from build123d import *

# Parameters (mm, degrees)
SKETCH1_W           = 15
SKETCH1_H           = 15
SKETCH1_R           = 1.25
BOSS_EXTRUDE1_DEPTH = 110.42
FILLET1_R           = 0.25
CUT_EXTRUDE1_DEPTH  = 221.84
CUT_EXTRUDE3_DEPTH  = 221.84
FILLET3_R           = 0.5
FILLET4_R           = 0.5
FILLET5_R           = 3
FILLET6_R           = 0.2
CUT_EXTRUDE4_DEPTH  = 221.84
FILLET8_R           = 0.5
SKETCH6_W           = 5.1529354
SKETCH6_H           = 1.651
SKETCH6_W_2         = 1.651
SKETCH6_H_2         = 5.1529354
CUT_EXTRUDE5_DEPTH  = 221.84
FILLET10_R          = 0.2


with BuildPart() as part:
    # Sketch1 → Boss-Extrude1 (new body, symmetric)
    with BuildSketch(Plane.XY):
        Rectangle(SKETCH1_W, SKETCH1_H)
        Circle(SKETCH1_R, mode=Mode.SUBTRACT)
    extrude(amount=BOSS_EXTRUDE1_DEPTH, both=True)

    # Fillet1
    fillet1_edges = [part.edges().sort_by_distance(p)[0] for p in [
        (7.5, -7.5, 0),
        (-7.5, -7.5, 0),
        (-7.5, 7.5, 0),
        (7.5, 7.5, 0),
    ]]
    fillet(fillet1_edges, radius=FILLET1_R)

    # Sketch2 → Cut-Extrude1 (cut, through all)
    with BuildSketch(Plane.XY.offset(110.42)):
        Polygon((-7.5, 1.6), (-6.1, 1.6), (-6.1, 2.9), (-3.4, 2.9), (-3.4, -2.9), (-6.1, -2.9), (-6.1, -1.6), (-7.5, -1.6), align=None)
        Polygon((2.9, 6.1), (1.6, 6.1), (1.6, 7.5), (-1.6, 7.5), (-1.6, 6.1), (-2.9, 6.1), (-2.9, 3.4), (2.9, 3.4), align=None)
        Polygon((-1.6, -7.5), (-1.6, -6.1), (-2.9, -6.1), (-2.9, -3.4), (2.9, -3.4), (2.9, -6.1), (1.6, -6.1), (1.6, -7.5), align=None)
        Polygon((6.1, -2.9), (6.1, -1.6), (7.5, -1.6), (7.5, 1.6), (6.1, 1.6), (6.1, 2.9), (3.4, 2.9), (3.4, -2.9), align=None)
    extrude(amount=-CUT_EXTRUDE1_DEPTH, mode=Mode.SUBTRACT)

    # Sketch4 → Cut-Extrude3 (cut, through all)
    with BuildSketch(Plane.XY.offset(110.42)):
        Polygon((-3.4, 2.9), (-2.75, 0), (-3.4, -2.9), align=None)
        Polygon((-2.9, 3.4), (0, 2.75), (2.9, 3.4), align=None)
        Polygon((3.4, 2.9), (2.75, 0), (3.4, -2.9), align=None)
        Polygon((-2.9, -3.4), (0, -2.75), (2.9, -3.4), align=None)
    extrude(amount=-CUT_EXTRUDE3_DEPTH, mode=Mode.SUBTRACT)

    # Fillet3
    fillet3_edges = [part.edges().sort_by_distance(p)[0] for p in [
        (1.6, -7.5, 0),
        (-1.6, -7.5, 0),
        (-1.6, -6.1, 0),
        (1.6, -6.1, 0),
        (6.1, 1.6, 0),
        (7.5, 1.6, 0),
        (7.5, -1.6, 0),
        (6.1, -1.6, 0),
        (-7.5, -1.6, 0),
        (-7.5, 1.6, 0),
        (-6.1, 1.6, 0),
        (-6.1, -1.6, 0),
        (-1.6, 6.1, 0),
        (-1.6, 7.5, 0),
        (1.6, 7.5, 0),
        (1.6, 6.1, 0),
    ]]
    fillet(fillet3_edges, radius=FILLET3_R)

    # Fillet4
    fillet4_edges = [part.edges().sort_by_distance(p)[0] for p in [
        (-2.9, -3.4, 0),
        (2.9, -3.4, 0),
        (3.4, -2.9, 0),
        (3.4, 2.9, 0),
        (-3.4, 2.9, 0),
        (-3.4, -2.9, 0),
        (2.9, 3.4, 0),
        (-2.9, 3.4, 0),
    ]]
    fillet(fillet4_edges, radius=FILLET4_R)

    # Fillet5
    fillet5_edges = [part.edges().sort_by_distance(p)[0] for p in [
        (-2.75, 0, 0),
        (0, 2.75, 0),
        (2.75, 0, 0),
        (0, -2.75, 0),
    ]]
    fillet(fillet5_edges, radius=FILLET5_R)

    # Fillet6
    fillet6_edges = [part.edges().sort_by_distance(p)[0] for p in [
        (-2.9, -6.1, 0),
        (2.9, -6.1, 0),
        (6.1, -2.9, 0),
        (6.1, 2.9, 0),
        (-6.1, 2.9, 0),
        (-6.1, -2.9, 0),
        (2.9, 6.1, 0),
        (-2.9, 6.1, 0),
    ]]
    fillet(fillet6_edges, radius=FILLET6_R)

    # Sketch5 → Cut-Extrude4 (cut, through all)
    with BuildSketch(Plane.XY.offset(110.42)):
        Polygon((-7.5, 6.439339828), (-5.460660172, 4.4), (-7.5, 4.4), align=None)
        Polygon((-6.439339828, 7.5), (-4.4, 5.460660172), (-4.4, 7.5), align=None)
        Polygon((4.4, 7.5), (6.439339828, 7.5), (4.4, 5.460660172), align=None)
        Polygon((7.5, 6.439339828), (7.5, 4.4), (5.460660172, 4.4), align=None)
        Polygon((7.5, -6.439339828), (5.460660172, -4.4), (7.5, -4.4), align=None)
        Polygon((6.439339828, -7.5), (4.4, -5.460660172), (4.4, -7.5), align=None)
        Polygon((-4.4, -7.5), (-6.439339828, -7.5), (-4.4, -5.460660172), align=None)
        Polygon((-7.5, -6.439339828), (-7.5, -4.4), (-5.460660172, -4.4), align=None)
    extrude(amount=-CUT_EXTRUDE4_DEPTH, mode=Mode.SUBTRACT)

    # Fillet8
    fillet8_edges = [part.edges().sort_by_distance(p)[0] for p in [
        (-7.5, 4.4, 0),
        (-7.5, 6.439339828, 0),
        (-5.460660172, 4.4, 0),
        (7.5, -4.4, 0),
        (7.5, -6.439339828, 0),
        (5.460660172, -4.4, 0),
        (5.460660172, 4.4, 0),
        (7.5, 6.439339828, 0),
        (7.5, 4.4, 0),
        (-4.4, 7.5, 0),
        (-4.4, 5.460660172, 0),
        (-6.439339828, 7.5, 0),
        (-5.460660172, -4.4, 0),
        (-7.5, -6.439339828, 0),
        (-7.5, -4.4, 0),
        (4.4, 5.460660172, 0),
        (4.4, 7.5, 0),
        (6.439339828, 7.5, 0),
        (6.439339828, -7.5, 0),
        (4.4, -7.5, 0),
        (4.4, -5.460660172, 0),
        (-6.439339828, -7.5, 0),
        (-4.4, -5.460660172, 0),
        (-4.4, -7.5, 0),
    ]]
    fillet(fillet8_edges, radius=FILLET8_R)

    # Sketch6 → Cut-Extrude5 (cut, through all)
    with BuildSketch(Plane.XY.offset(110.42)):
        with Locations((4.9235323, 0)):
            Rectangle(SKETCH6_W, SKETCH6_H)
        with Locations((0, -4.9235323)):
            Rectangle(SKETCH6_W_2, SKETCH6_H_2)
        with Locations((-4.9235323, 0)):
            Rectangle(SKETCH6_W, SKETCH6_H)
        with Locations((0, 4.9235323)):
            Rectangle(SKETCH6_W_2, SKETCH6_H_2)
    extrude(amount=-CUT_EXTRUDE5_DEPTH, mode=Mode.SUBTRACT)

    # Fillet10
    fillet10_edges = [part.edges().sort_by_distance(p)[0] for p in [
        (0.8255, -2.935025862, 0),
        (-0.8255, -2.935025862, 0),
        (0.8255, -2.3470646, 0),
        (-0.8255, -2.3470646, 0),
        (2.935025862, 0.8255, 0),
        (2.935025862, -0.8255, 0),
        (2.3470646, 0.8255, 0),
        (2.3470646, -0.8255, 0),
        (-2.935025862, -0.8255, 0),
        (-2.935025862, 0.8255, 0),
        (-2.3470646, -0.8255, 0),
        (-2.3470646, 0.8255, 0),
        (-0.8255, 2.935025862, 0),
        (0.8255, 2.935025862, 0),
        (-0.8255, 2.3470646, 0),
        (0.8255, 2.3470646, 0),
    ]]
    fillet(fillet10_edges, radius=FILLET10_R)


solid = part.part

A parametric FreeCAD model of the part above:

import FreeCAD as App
import Part
import Sketcher


def edges_at(feature, points):
    """Names of the edges that pass closest to the given points."""
    edges = feature.Shape.Edges
    near = lambda p: min(range(len(edges)), key=lambda i: edges[i].distToShape(Part.Vertex(*p))[0])
    return sorted({f"Edge{near(p) + 1}" for p in points})


def add_polygon(sketch, points):
    """Adds a closed chain of lines whose ends are joined by coincident constraints."""
    first, n = sketch.GeometryCount, len(points)
    for a, b in zip(points, points[1:] + points[:1]):
        sketch.addGeometry(Part.LineSegment(App.Vector(*a, 0), App.Vector(*b, 0)), False)
    for i in range(n):
        sketch.addConstraint(Sketcher.Constraint("Coincident", first + i, 2, first + (i + 1) % n, 1))

doc = App.newDocument("Part")
params = doc.addObject("Spreadsheet::Sheet", "Params")
for row, (alias, value) in enumerate([
    ("sketch1_diameter", "2.5 mm"),
    ("sketch1_width", "15 mm"),
    ("pad1_length", "220.84 mm"),
    ("fillet_radius", "0.25 mm"),
    ("sketch2_width", "1.4 mm"),
    ("sketch2_width2", "2.7 mm"),
    ("sketch2_width3", "1.3 mm"),
    ("sketch2_width4", "3.2 mm"),
    ("sketch3_width", "5.8 mm"),
    ("fillet2_radius", "0.5 mm"),
    ("fillet3_radius", "0.5 mm"),
    ("fillet4_radius", "3 mm"),
    ("fillet5_radius", "0.2 mm"),
    ("fillet6_radius", "0.5 mm"),
    ("fillet7_radius", "0.2 mm"),
], start=1):
    params.set(f"A{row}", alias)
    params.set(f"B{row}", "=" + value)
    params.setAlias(f"B{row}", alias)

body = doc.addObject("PartDesign::Body", "Body")

sketch1 = body.newObject("Sketcher::SketchObject", "Sketch")
sketch1.AttachmentSupport = (doc.getObject("XY_Plane"), [""])
sketch1.MapMode = "FlatFace"
add_polygon(sketch1, [(-7.5, 7.5), (-7.5, -7.5), (7.5, -7.5), (7.5, 7.5)])
sketch1.addGeometry(Part.Circle(App.Vector(0, 0, 0), App.Vector(0, 0, 1), 1.2), False)
sketch1.addConstraint(Sketcher.Constraint("Vertical", 0))
sketch1.addConstraint(Sketcher.Constraint("Horizontal", 1))
sketch1.addConstraint(Sketcher.Constraint("Vertical", 2))
sketch1.addConstraint(Sketcher.Constraint("Horizontal", 3))
sketch1.addConstraint(Sketcher.Constraint("Coincident", 4, 3, -1, 1))
sketch1.addConstraint(Sketcher.Constraint("Symmetric", 0, 2, 2, 2, -1, 1))
sketch1.addConstraint(Sketcher.Constraint("Equal", 3, 0))
sketch1.addConstraint(Sketcher.Constraint("Diameter", 4, 2.5))
sketch1.addConstraint(Sketcher.Constraint("DistanceX", 1, 1, 1, 2, 15.0))
sketch1.setExpression("Constraints[11]", "Params.sketch1_diameter")
sketch1.setExpression("Constraints[12]", "Params.sketch1_width")
pad1 = body.newObject("PartDesign::Pad", "Pad")
pad1.Profile = sketch1
pad1.setExpression("Length", "Params.pad1_length")
pad1.Midplane = True
doc.recompute()

fillet = body.newObject("PartDesign::Fillet", "Fillet")
fillet.Base = (pad1, edges_at(pad1, [
    (7.5, -7.5, 0),
    (-7.5, -7.5, 0),
    (-7.5, 7.5, 0),
    (7.5, 7.5, 0),
]))
fillet.setExpression("Radius", "Params.fillet_radius")

sketch2 = body.newObject("Sketcher::SketchObject", "Sketch001")
sketch2.AttachmentSupport = (doc.getObject("XY_Plane"), [""])
sketch2.MapMode = "FlatFace"
sketch2.AttachmentOffset = App.Placement(App.Vector(0, 0, 110.42), App.Rotation())
add_polygon(sketch2, [(-6.1, 1.6), (-7.5, 1.6), (-7.5, -1.6), (-6.1, -1.6), (-6.1, -2.9), (-3.4, -2.9), (-3.4, 2.9), (-6.1, 2.9)])
add_polygon(sketch2, [(2.9, 6.1), (1.6, 6.1), (1.6, 7.5), (-1.6, 7.5), (-1.6, 6.1), (-2.9, 6.1), (-2.9, 3.4), (2.9, 3.4)])
add_polygon(sketch2, [(-1.6, -6.1), (-1.6, -7.5), (1.6, -7.5), (1.6, -6.1), (2.9, -6.1), (2.9, -3.4), (-2.9, -3.4), (-2.9, -6.1)])
add_polygon(sketch2, [(6.1, -2.9), (6.1, -1.6), (7.5, -1.6), (7.5, 1.6), (6.1, 1.6), (6.1, 2.9), (3.4, 2.9), (3.4, -2.9)])
sketch2.addConstraint(Sketcher.Constraint("Horizontal", 0))
sketch2.addConstraint(Sketcher.Constraint("Vertical", 1))
sketch2.addConstraint(Sketcher.Constraint("Horizontal", 2))
sketch2.addConstraint(Sketcher.Constraint("Vertical", 3))
sketch2.addConstraint(Sketcher.Constraint("Horizontal", 4))
sketch2.addConstraint(Sketcher.Constraint("Vertical", 5))
sketch2.addConstraint(Sketcher.Constraint("Horizontal", 6))
sketch2.addConstraint(Sketcher.Constraint("Vertical", 7))
sketch2.addConstraint(Sketcher.Constraint("Horizontal", 8))
sketch2.addConstraint(Sketcher.Constraint("Vertical", 9))
sketch2.addConstraint(Sketcher.Constraint("Horizontal", 10))
sketch2.addConstraint(Sketcher.Constraint("Vertical", 11))
sketch2.addConstraint(Sketcher.Constraint("Horizontal", 12))
sketch2.addConstraint(Sketcher.Constraint("Vertical", 13))
sketch2.addConstraint(Sketcher.Constraint("Horizontal", 14))
sketch2.addConstraint(Sketcher.Constraint("Vertical", 15))
sketch2.addConstraint(Sketcher.Constraint("Vertical", 16))
sketch2.addConstraint(Sketcher.Constraint("Horizontal", 17))
sketch2.addConstraint(Sketcher.Constraint("Vertical", 18))
sketch2.addConstraint(Sketcher.Constraint("Horizontal", 19))
sketch2.addConstraint(Sketcher.Constraint("Vertical", 20))
sketch2.addConstraint(Sketcher.Constraint("Horizontal", 21))
sketch2.addConstraint(Sketcher.Constraint("Vertical", 22))
sketch2.addConstraint(Sketcher.Constraint("Horizontal", 23))
sketch2.addConstraint(Sketcher.Constraint("Vertical", 24))
sketch2.addConstraint(Sketcher.Constraint("Horizontal", 25))
sketch2.addConstraint(Sketcher.Constraint("Vertical", 26))
sketch2.addConstraint(Sketcher.Constraint("Horizontal", 27))
sketch2.addConstraint(Sketcher.Constraint("Vertical", 28))
sketch2.addConstraint(Sketcher.Constraint("Horizontal", 29))
sketch2.addConstraint(Sketcher.Constraint("Vertical", 30))
sketch2.addConstraint(Sketcher.Constraint("Horizontal", 31))
sketch2.addConstraint(Sketcher.Constraint("Symmetric", 9, 2, 16, 2, -1, 1))
sketch2.addConstraint(Sketcher.Constraint("Symmetric", 11, 2, 18, 2, -1, 1))
sketch2.addConstraint(Sketcher.Constraint("Symmetric", 13, 2, 20, 2, -1, 1))
sketch2.addConstraint(Sketcher.Constraint("Symmetric", 15, 2, 22, 2, -1, 1))
sketch2.addConstraint(Sketcher.Constraint("Symmetric", 7, 2, 24, 2, -1, 1))
sketch2.addConstraint(Sketcher.Constraint("Symmetric", 1, 2, 26, 2, -1, 1))
sketch2.addConstraint(Sketcher.Constraint("Symmetric", 3, 2, 28, 2, -1, 1))
sketch2.addConstraint(Sketcher.Constraint("Symmetric", 5, 2, 30, 2, -1, 1))
sketch2.addConstraint(Sketcher.Constraint("Symmetric", 8, 2, 11, 2, -2))
sketch2.addConstraint(Sketcher.Constraint("Symmetric", 2, 2, 24, 2, -2))
sketch2.addConstraint(Sketcher.Constraint("Horizontal", 6, 2, 28, 2))
sketch2.addConstraint(Sketcher.Constraint("Vertical", 15, 2, 19, 2))
sketch2.addConstraint(Sketcher.Constraint("Equal", 17, 1))
sketch2.addConstraint(Sketcher.Constraint("Equal", 23, 3))
sketch2.addConstraint(Sketcher.Constraint("Equal", 27, 9))
sketch2.addConstraint(Sketcher.Constraint("Equal", 31, 13))
sketch2.addConstraint(Sketcher.Constraint("DistanceX", 0, 2, 0, 1, 1.4))
sketch2.addConstraint(Sketcher.Constraint("DistanceX", 4, 1, 4, 2, 2.7))
sketch2.addConstraint(Sketcher.Constraint("DistanceX", 8, 2, 8, 1, 1.3))
sketch2.addConstraint(Sketcher.Constraint("DistanceX", 10, 2, 10, 1, 3.2))
sketch2.addConstraint(Sketcher.Constraint("DistanceX", 5, 2, 8, 2, 5.0))
sketch2.addConstraint(Sketcher.Constraint("DistanceY", 4, 2, 8, 2, 9.0))
sketch2.setExpression("Constraints[80]", "Params.sketch2_width")
sketch2.setExpression("Constraints[81]", "Params.sketch2_width2")
sketch2.setExpression("Constraints[82]", "Params.sketch2_width3")
sketch2.setExpression("Constraints[83]", "Params.sketch2_width4")
pocket1 = body.newObject("PartDesign::Pocket", "Pocket")
pocket1.Profile = sketch2
pocket1.Type = "ThroughAll"

sketch3 = body.newObject("Sketcher::SketchObject", "Sketch002")
sketch3.AttachmentSupport = (doc.getObject("XY_Plane"), [""])
sketch3.MapMode = "FlatFace"
sketch3.AttachmentOffset = App.Placement(App.Vector(0, 0, 110.42), App.Rotation())
add_polygon(sketch3, [(-2.8, 0), (-3.4, 2.9), (-3.4, -2.9)])
add_polygon(sketch3, [(-2.9, 3.4), (0, 2.8), (2.9, 3.4)])
add_polygon(sketch3, [(3.4, 2.9), (2.8, 0), (3.4, -2.9)])
add_polygon(sketch3, [(0, -2.8), (-2.9, -3.4), (2.9, -3.4)])
sketch3.addConstraint(Sketcher.Constraint("Vertical", 1))
sketch3.addConstraint(Sketcher.Constraint("Horizontal", 5))
sketch3.addConstraint(Sketcher.Constraint("Vertical", 8))
sketch3.addConstraint(Sketcher.Constraint("Horizontal", 10))
sketch3.addConstraint(Sketcher.Constraint("Symmetric", 2, 2, 6, 2, -1, 1))
sketch3.addConstraint(Sketcher.Constraint("Symmetric", 0, 2, 7, 2, -1, 1))
sketch3.addConstraint(Sketcher.Constraint("Symmetric", 4, 2, 9, 2, -1, 1))
sketch3.addConstraint(Sketcher.Constraint("Symmetric", 3, 2, 11, 2, -1, 1))
sketch3.addConstraint(Sketcher.Constraint("PointOnObject", 2, 2, -1))
sketch3.addConstraint(Sketcher.Constraint("PointOnObject", 3, 2, -2))
sketch3.addConstraint(Sketcher.Constraint("Perpendicular", 2, 3))
sketch3.addConstraint(Sketcher.Constraint("Perpendicular", 0, 4))
sketch3.addConstraint(Sketcher.Constraint("Perpendicular", 3, 6))
sketch3.addConstraint(Sketcher.Constraint("Perpendicular", 6, 11))
sketch3.addConstraint(Sketcher.Constraint("Horizontal", 1, 2, 7, 2))
sketch3.addConstraint(Sketcher.Constraint("Equal", 10, 1))
sketch3.addConstraint(Sketcher.Constraint("DistanceX", 5, 2, 5, 1, 5.8))
sketch3.addConstraint(Sketcher.Constraint("DistanceX", 0, 2, -1, 1, 3.4))
sketch3.addConstraint(Sketcher.Constraint("DistanceY", -1, 1, 4, 2, 3.4))
sketch3.addConstraint(Sketcher.Constraint("DistanceX", 2, 2, 6, 2, 5.5))
sketch3.setExpression("Constraints[28]", "Params.sketch3_width")
pocket2 = body.newObject("PartDesign::Pocket", "Pocket001")
pocket2.Profile = sketch3
pocket2.Type = "ThroughAll"
doc.recompute()

fillet2 = body.newObject("PartDesign::Fillet", "Fillet001")
fillet2.Base = (pocket2, edges_at(pocket2, [
    (1.6, -7.5, 0),
    (-1.6, -7.5, 0),
    (-1.6, -6.1, 0),
    (1.6, -6.1, 0),
    (6.1, 1.6, 0),
    (7.5, 1.6, 0),
    (7.5, -1.6, 0),
    (6.1, -1.6, 0),
    (-7.5, -1.6, 0),
    (-7.5, 1.6, 0),
    (-6.1, 1.6, 0),
    (-6.1, -1.6, 0),
    (-1.6, 6.1, 0),
    (-1.6, 7.5, 0),
    (1.6, 7.5, 0),
    (1.6, 6.1, 0),
]))
fillet2.setExpression("Radius", "Params.fillet2_radius")
doc.recompute()

fillet3 = body.newObject("PartDesign::Fillet", "Fillet002")
fillet3.Base = (fillet2, edges_at(fillet2, [
    (-2.9, -3.4, 0),
    (2.9, -3.4, 0),
    (3.4, -2.9, 0),
    (3.4, 2.9, 0),
    (-3.4, 2.9, 0),
    (-3.4, -2.9, 0),
    (2.9, 3.4, 0),
    (-2.9, 3.4, 0),
]))
fillet3.setExpression("Radius", "Params.fillet3_radius")
doc.recompute()

fillet4 = body.newObject("PartDesign::Fillet", "Fillet003")
fillet4.Base = (fillet3, edges_at(fillet3, [
    (-2.75, 0, 0),
    (0, 2.75, 0),
    (2.75, 0, 0),
    (0, -2.75, 0),
]))
fillet4.setExpression("Radius", "Params.fillet4_radius")
doc.recompute()

fillet5 = body.newObject("PartDesign::Fillet", "Fillet004")
fillet5.Base = (fillet4, edges_at(fillet4, [
    (-2.9, -6.1, 0),
    (2.9, -6.1, 0),
    (6.1, -2.9, 0),
    (6.1, 2.9, 0),
    (-6.1, 2.9, 0),
    (-6.1, -2.9, 0),
    (2.9, 6.1, 0),
    (-2.9, 6.1, 0),
]))
fillet5.setExpression("Radius", "Params.fillet5_radius")

sketch4 = body.newObject("Sketcher::SketchObject", "Sketch003")
sketch4.AttachmentSupport = (doc.getObject("XY_Plane"), [""])
sketch4.MapMode = "FlatFace"
sketch4.AttachmentOffset = App.Placement(App.Vector(0, 0, 110.42), App.Rotation())
add_polygon(sketch4, [(-5.5, 4.4), (-7.5, 6.4), (-7.5, 4.4)])
add_polygon(sketch4, [(-6.4, 7.5), (-4.4, 5.5), (-4.4, 7.5)])
add_polygon(sketch4, [(6.4, 7.5), (4.4, 7.5), (4.4, 5.5)])
add_polygon(sketch4, [(7.5, 4.4), (7.5, 6.4), (5.5, 4.4)])
add_polygon(sketch4, [(5.5, -4.4), (7.5, -6.4), (7.5, -4.4)])
add_polygon(sketch4, [(6.4, -7.5), (4.4, -5.5), (4.4, -7.5)])
add_polygon(sketch4, [(-6.4, -7.5), (-4.4, -7.5), (-4.4, -5.5)])
add_polygon(sketch4, [(-7.5, -4.4), (-7.5, -6.4), (-5.5, -4.4)])
sketch4.addConstraint(Sketcher.Constraint("Vertical", 1))
sketch4.addConstraint(Sketcher.Constraint("Horizontal", 2))
sketch4.addConstraint(Sketcher.Constraint("Vertical", 4))
sketch4.addConstraint(Sketcher.Constraint("Horizontal", 5))
sketch4.addConstraint(Sketcher.Constraint("Horizontal", 6))
sketch4.addConstraint(Sketcher.Constraint("Vertical", 7))
sketch4.addConstraint(Sketcher.Constraint("Vertical", 9))
sketch4.addConstraint(Sketcher.Constraint("Horizontal", 11))
sketch4.addConstraint(Sketcher.Constraint("Vertical", 13))
sketch4.addConstraint(Sketcher.Constraint("Horizontal", 14))
sketch4.addConstraint(Sketcher.Constraint("Vertical", 16))
sketch4.addConstraint(Sketcher.Constraint("Horizontal", 17))
sketch4.addConstraint(Sketcher.Constraint("Horizontal", 18))
sketch4.addConstraint(Sketcher.Constraint("Vertical", 19))
sketch4.addConstraint(Sketcher.Constraint("Vertical", 21))
sketch4.addConstraint(Sketcher.Constraint("Horizontal", 23))
sketch4.addConstraint(Sketcher.Constraint("Symmetric", 0, 2, 12, 2, -1, 1))
sketch4.addConstraint(Sketcher.Constraint("Symmetric", 2, 2, 14, 2, -1, 1))
sketch4.addConstraint(Sketcher.Constraint("Symmetric", 3, 2, 15, 2, -1, 1))
sketch4.addConstraint(Sketcher.Constraint("Symmetric", 5, 2, 17, 2, -1, 1))
sketch4.addConstraint(Sketcher.Constraint("Symmetric", 6, 2, 18, 2, -1, 1))
sketch4.addConstraint(Sketcher.Constraint("Symmetric", 9, 2, 21, 2, -1, 1))
sketch4.addConstraint(Sketcher.Constraint("Symmetric", 10, 2, 22, 2, -1, 1))
sketch4.addConstraint(Sketcher.Constraint("Symmetric", 4, 2, 6, 2, -2))
sketch4.addConstraint(Sketcher.Constraint("Symmetric", 0, 2, 9, 2, -2))
sketch4.addConstraint(Sketcher.Constraint("Symmetric", 2, 2, 10, 2, -2))
sketch4.addConstraint(Sketcher.Constraint("Parallel", 0, 3))
sketch4.addConstraint(Sketcher.Constraint("Perpendicular", 3, 8))
sketch4.addConstraint(Sketcher.Constraint("Parallel", 8, 10))
sketch4.addConstraint(Sketcher.Constraint("Perpendicular", 15, 20))
sketch4.addConstraint(Sketcher.Constraint("Horizontal", 3, 2, 7, 2))
sketch4.addConstraint(Sketcher.Constraint("Horizontal", 15, 2, 19, 2))
sketch4.addConstraint(Sketcher.Constraint("Equal", 2, 5))
sketch4.addConstraint(Sketcher.Constraint("DistanceX", 0, 2, -1, 1, 7.5))
sketch4.addConstraint(Sketcher.Constraint("DistanceY", -1, 1, 1, 2, 4.4))
sketch4.addConstraint(Sketcher.Constraint("DistanceX", 3, 2, -1, 1, 4.4))
sketch4.addConstraint(Sketcher.Constraint("DistanceY", -1, 1, 4, 2, 7.5))
sketch4.addConstraint(Sketcher.Constraint("DistanceX", 2, 1, 2, 2, 2.03934))
pocket3 = body.newObject("PartDesign::Pocket", "Pocket002")
pocket3.Profile = sketch4
pocket3.Type = "ThroughAll"
doc.recompute()

fillet6 = body.newObject("PartDesign::Fillet", "Fillet005")
fillet6.Base = (pocket3, edges_at(pocket3, [
    (-7.5, 4.4, 0),
    (-7.5, 6.439, 0),
    (-5.461, 4.4, 0),
    (7.5, -4.4, 0),
    (7.5, -6.439, 0),
    (5.461, -4.4, 0),
    (5.461, 4.4, 0),
    (7.5, 6.439, 0),
    (7.5, 4.4, 0),
    (-4.4, 7.5, 0),
    (-4.4, 5.461, 0),
    (-6.439, 7.5, 0),
    (-5.461, -4.4, 0),
    (-7.5, -6.439, 0),
    (-7.5, -4.4, 0),
    (4.4, 5.461, 0),
    (4.4, 7.5, 0),
    (6.439, 7.5, 0),
    (6.439, -7.5, 0),
    (4.4, -7.5, 0),
    (4.4, -5.461, 0),
    (-6.439, -7.5, 0),
    (-4.4, -5.461, 0),
    (-4.4, -7.5, 0),
]))
fillet6.setExpression("Radius", "Params.fillet6_radius")

sketch5 = body.newObject("Sketcher::SketchObject", "Sketch004")
sketch5.AttachmentSupport = (doc.getObject("XY_Plane"), [""])
sketch5.MapMode = "FlatFace"
sketch5.AttachmentOffset = App.Placement(App.Vector(0, 0, 110.42), App.Rotation())
add_polygon(sketch5, [(2.3, 0.8), (2.3, -0.8), (7.5, -0.8), (7.5, 0.8)])
add_polygon(sketch5, [(-0.8, -2.3), (-0.8, -7.5), (0.8, -7.5), (0.8, -2.3)])
add_polygon(sketch5, [(-7.5, 0.8), (-7.5, -0.8), (-2.3, -0.8), (-2.3, 0.8)])
add_polygon(sketch5, [(-0.8, 7.5), (-0.8, 2.3), (0.8, 2.3), (0.8, 7.5)])
sketch5.addConstraint(Sketcher.Constraint("Vertical", 0))
sketch5.addConstraint(Sketcher.Constraint("Horizontal", 1))
sketch5.addConstraint(Sketcher.Constraint("Vertical", 2))
sketch5.addConstraint(Sketcher.Constraint("Horizontal", 3))
sketch5.addConstraint(Sketcher.Constraint("Vertical", 4))
sketch5.addConstraint(Sketcher.Constraint("Horizontal", 5))
sketch5.addConstraint(Sketcher.Constraint("Vertical", 6))
sketch5.addConstraint(Sketcher.Constraint("Horizontal", 7))
sketch5.addConstraint(Sketcher.Constraint("Vertical", 8))
sketch5.addConstraint(Sketcher.Constraint("Horizontal", 9))
sketch5.addConstraint(Sketcher.Constraint("Vertical", 10))
sketch5.addConstraint(Sketcher.Constraint("Horizontal", 11))
sketch5.addConstraint(Sketcher.Constraint("Vertical", 12))
sketch5.addConstraint(Sketcher.Constraint("Horizontal", 13))
sketch5.addConstraint(Sketcher.Constraint("Vertical", 14))
sketch5.addConstraint(Sketcher.Constraint("Horizontal", 15))
sketch5.addConstraint(Sketcher.Constraint("Symmetric", 2, 2, 8, 2, -1, 1))
sketch5.addConstraint(Sketcher.Constraint("Symmetric", 0, 2, 10, 2, -1, 1))
sketch5.addConstraint(Sketcher.Constraint("Symmetric", 6, 2, 12, 2, -1, 1))
sketch5.addConstraint(Sketcher.Constraint("Symmetric", 4, 2, 14, 2, -1, 1))
sketch5.addConstraint(Sketcher.Constraint("Horizontal", 1, 2, 8, 2))
sketch5.addConstraint(Sketcher.Constraint("Vertical", 7, 2, 12, 2))
sketch5.addConstraint(Sketcher.Constraint("Equal", 15, 0))
sketch5.addConstraint(Sketcher.Constraint("Equal", 11, 4))
sketch5.addConstraint(Sketcher.Constraint("DistanceX", -1, 1, 1, 2, 7.5))
sketch5.addConstraint(Sketcher.Constraint("DistanceY", 4, 2, -1, 1, 7.5))
sketch5.addConstraint(Sketcher.Constraint("DistanceX", 5, 1, 5, 2, 1.651))
sketch5.addConstraint(Sketcher.Constraint("DistanceX", 1, 1, 1, 2, 5.152935))
pocket4 = body.newObject("PartDesign::Pocket", "Pocket003")
pocket4.Profile = sketch5
pocket4.Type = "ThroughAll"
doc.recompute()

fillet7 = body.newObject("PartDesign::Fillet", "Fillet006")
fillet7.Base = (pocket4, edges_at(pocket4, [
    (0.826, -2.935, 0),
    (-0.826, -2.935, 0),
    (0.826, -2.347, 0),
    (-0.826, -2.347, 0),
    (2.935, 0.826, 0),
    (2.935, -0.826, 0),
    (2.347, 0.826, 0),
    (2.347, -0.826, 0),
    (-2.935, -0.826, 0),
    (-2.935, 0.826, 0),
    (-2.347, -0.826, 0),
    (-2.347, 0.826, 0),
    (-0.826, 2.935, 0),
    (0.826, 2.935, 0),
    (-0.826, 2.347, 0),
    (0.826, 2.347, 0),
]))
fillet7.setExpression("Radius", "Params.fillet7_radius")

doc.recompute()
